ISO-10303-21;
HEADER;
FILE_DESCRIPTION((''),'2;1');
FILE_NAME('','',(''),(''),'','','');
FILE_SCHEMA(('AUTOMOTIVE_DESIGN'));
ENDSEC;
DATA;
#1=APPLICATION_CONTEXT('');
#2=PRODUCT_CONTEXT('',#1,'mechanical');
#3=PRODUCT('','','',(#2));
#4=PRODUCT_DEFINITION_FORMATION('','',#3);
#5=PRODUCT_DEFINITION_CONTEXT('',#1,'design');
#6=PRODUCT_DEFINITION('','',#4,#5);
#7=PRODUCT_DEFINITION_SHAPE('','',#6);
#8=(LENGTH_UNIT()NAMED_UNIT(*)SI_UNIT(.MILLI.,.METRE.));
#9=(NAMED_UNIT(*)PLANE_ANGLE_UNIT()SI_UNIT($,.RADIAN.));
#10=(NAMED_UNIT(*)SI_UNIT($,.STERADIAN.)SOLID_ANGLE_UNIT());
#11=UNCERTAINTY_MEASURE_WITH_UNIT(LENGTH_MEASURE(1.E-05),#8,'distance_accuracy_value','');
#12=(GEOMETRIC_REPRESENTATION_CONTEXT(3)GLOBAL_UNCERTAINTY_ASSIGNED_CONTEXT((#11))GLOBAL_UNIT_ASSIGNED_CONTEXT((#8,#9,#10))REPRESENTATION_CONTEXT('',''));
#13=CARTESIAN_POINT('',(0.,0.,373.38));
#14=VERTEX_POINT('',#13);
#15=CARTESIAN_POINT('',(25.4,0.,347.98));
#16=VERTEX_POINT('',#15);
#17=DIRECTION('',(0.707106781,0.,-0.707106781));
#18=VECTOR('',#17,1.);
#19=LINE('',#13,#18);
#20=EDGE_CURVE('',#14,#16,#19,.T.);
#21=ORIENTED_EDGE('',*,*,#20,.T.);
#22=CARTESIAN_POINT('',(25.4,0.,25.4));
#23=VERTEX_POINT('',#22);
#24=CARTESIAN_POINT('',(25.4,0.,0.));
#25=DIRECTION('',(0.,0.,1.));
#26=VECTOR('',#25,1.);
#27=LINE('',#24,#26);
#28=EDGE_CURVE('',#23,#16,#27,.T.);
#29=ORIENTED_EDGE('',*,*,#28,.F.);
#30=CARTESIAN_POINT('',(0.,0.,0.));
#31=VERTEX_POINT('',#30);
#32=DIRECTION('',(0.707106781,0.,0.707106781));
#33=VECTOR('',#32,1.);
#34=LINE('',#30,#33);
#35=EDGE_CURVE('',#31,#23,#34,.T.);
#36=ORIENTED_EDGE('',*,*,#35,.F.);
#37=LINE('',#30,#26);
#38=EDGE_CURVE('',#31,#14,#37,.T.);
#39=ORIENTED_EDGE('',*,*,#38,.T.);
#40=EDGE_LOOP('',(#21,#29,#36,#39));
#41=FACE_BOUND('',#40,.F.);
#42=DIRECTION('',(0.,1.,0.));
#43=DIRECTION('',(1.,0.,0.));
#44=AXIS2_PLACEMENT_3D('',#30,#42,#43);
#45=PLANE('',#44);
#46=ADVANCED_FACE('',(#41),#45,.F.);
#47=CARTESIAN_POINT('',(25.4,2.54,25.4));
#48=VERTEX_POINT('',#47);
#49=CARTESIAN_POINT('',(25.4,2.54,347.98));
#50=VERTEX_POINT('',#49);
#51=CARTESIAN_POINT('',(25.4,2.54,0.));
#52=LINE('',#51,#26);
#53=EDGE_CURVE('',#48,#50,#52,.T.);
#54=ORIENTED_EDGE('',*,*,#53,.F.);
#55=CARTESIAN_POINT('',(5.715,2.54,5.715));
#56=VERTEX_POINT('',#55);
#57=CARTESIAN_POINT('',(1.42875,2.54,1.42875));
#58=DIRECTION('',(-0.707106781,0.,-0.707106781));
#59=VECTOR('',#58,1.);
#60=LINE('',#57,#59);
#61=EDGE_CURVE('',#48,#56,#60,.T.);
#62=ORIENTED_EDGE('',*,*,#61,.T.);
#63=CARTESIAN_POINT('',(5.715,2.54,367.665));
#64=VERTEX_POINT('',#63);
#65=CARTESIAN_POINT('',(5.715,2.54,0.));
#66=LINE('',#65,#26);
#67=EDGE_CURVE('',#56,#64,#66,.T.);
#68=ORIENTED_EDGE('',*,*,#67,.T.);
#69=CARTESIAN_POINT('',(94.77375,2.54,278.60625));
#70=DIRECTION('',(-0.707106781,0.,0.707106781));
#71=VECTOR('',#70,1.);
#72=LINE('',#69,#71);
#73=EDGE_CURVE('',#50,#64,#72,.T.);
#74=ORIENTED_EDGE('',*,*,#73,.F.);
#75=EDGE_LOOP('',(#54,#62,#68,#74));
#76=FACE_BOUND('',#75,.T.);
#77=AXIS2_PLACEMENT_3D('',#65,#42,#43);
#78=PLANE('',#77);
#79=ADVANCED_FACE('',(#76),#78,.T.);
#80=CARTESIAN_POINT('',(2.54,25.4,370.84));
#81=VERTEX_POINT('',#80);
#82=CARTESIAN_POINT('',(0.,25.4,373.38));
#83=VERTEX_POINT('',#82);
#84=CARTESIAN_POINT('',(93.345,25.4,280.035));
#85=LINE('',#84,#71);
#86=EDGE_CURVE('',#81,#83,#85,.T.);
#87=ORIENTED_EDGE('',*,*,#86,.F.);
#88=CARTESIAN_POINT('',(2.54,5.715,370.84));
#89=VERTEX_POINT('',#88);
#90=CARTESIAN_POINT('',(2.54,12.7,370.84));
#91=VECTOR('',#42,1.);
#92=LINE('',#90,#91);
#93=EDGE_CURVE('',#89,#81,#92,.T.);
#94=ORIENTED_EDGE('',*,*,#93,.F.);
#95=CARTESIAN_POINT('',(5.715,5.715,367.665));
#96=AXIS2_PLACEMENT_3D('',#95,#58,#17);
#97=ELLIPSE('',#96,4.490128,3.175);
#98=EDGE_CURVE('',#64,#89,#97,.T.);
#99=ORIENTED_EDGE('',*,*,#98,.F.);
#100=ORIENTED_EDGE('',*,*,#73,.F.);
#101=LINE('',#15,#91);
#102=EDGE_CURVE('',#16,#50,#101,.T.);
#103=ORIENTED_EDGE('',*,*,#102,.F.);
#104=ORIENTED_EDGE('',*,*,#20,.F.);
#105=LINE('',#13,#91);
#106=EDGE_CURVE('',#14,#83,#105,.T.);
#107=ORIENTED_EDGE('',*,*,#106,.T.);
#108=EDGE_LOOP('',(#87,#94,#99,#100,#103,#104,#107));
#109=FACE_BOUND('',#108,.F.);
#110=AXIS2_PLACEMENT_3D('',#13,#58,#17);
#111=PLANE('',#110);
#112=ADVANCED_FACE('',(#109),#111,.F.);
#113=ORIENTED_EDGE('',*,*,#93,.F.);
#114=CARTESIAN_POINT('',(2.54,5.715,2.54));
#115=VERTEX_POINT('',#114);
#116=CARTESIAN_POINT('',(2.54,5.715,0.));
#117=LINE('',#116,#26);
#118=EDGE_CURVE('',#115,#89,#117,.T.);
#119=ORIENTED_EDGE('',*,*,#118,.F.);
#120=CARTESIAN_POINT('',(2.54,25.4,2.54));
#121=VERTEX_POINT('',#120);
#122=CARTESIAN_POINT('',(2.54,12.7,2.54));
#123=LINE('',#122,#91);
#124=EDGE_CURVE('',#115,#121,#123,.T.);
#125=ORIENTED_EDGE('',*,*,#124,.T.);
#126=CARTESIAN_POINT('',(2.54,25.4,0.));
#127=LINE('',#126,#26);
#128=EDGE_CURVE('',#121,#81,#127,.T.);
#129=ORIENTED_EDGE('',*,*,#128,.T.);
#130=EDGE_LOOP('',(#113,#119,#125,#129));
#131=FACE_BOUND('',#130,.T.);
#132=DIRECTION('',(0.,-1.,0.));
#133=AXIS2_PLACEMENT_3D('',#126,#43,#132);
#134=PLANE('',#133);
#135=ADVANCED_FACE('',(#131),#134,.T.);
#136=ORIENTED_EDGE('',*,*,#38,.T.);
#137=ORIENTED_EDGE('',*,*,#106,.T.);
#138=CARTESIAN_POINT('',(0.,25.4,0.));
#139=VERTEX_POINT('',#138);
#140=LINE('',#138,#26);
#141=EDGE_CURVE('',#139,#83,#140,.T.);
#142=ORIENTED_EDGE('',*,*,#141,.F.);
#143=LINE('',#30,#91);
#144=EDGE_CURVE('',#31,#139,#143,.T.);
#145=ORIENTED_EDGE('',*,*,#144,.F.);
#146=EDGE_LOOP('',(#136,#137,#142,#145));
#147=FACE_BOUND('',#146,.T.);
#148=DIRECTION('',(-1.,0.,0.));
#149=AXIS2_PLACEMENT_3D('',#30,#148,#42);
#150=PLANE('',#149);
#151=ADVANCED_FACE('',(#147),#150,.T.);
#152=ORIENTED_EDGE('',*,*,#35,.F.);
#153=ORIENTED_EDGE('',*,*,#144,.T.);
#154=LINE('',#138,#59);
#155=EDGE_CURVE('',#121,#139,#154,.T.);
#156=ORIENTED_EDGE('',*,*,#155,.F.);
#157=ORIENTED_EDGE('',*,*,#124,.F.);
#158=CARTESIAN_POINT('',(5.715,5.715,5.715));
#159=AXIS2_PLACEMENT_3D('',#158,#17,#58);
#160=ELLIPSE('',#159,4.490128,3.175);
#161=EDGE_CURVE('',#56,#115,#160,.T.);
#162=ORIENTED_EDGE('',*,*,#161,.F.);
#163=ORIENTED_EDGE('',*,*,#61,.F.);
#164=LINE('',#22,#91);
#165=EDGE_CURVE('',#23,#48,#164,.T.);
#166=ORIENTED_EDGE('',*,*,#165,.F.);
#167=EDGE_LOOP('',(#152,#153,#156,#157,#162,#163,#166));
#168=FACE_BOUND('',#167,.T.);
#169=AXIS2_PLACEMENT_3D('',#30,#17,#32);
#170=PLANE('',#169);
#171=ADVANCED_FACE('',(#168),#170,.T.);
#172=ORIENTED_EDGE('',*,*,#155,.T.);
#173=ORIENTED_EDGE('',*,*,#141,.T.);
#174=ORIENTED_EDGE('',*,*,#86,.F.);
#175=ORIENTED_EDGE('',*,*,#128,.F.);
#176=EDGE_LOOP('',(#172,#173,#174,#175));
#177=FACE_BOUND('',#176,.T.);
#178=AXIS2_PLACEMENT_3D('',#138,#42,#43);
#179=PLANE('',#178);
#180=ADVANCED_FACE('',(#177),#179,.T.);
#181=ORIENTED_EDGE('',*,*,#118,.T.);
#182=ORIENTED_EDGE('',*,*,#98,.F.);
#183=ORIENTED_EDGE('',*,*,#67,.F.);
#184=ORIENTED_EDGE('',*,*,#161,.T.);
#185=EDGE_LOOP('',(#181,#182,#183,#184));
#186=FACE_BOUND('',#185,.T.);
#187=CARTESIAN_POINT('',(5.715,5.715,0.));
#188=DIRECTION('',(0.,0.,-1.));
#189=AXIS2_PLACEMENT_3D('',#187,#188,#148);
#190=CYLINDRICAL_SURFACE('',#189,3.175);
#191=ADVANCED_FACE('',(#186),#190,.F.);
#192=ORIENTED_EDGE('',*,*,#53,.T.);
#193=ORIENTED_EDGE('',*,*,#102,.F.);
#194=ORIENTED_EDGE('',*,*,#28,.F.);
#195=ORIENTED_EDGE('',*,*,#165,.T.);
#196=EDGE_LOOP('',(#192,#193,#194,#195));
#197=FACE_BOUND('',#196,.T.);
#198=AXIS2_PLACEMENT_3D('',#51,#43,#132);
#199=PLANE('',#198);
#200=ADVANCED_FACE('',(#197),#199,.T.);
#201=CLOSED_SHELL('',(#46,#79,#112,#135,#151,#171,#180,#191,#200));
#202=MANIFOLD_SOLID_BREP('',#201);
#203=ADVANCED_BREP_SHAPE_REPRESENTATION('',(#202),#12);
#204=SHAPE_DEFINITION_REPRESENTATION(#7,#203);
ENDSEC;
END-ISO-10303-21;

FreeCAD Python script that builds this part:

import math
import FreeCAD as App
import Part
import Sketcher
Q = App.Units.Quantity

doc = App.newDocument("Part")
params = doc.addObject("Spreadsheet::Sheet", "Params")
for row, (alias, value) in enumerate([
    ("sketch1_width", "1 in"),
    ("sketch1_width2", "0.1 in"),
    ("sketch1_radius", "0.125 in"),
    ("pad1_length", "14.7 in"),
    ("sketch2_width", "1 in"),
    ("pocket1_length", "2 in"),
], start=1):
    params.set(f"A{row}", alias)
    params.set(f"B{row}", "=" + value)
    params.setAlias(f"B{row}", alias)

body = doc.addObject("PartDesign::Body", "Body")

# Sketch on XY plane
sketch1 = body.newObject("Sketcher::SketchObject", "Sketch")
sketch1.AttachmentSupport = (doc.getObject("XY_Plane"), [""])
sketch1.MapMode = "FlatFace"
sketch1.addGeometry(Part.LineSegment(App.Vector(0, 25.4, 0), App.Vector(0, 0, 0)), False)
sketch1.addGeometry(Part.LineSegment(App.Vector(0, 0, 0), App.Vector(25.4, 0, 0)), False)
sketch1.addGeometry(Part.LineSegment(App.Vector(25.4, 0, 0), App.Vector(25.4, 2.5, 0)), False)
sketch1.addGeometry(Part.LineSegment(App.Vector(25.4, 2.5, 0), App.Vector(5.7, 2.5, 0)), False)
sketch1.addGeometry(Part.ArcOfCircle(Part.Circle(App.Vector(5.7, 5.7, 0), App.Vector(0, 0, 1), 3.2), math.radians(180), math.radians(270)), False)
sketch1.addGeometry(Part.LineSegment(App.Vector(2.5, 5.7, 0), App.Vector(2.5, 25.4, 0)), False)
sketch1.addGeometry(Part.LineSegment(App.Vector(2.5, 25.4, 0), App.Vector(0, 25.4, 0)), False)
sketch1.addConstraint(Sketcher.Constraint("Coincident", 0, 2, 1, 1))
sketch1.addConstraint(Sketcher.Constraint("Coincident", 1, 2, 2, 1))
sketch1.addConstraint(Sketcher.Constraint("Coincident", 2, 2, 3, 1))
sketch1.addConstraint(Sketcher.Constraint("Tangent", 3, 2, 4, 2))
sketch1.addConstraint(Sketcher.Constraint("Tangent", 4, 1, 5, 1))
sketch1.addConstraint(Sketcher.Constraint("Coincident", 5, 2, 6, 1))
sketch1.addConstraint(Sketcher.Constraint("Coincident", 6, 2, 0, 1))
sketch1.addConstraint(Sketcher.Constraint("Vertical", 0))
sketch1.addConstraint(Sketcher.Constraint("Horizontal", 1))
sketch1.addConstraint(Sketcher.Constraint("Vertical", 2))
sketch1.addConstraint(Sketcher.Constraint("Horizontal", 3))
sketch1.addConstraint(Sketcher.Constraint("Vertical", 5))
sketch1.addConstraint(Sketcher.Constraint("Horizontal", 6))
sketch1.addConstraint(Sketcher.Constraint("Coincident", 0, 2, -1, 1))
sketch1.addConstraint(Sketcher.Constraint("Equal", 1, 0))
sketch1.addConstraint(Sketcher.Constraint("Equal", 6, 2))
sketch1.addConstraint(Sketcher.Constraint("DistanceX", 1, 1, 1, 2, Q("1 in")))
sketch1.addConstraint(Sketcher.Constraint("DistanceX", 6, 2, 6, 1, Q("0.1 in")))
sketch1.addConstraint(Sketcher.Constraint("Radius", 4, Q("0.125 in")))
sketch1.setExpression("Constraints[16]", "Params.sketch1_width")
sketch1.setExpression("Constraints[17]", "Params.sketch1_width2")
sketch1.setExpression("Constraints[18]", "Params.sketch1_radius")
pad1 = body.newObject("PartDesign::Pad", "Pad")
pad1.Profile = sketch1
pad1.setExpression("Length", "Params.pad1_length")

# Sketch on XZ plane
sketch2 = body.newObject("Sketcher::SketchObject", "Sketch001")
sketch2.AttachmentSupport = (doc.getObject("XZ_Plane"), [""])
sketch2.MapMode = "FlatFace"
sketch2.addGeometry(Part.LineSegment(App.Vector(0, 373, 0), App.Vector(25, 348, 0)), False)
sketch2.addGeometry(Part.LineSegment(App.Vector(25, 348, 0), App.Vector(25, 373, 0)), False)
sketch2.addGeometry(Part.LineSegment(App.Vector(25, 373, 0), App.Vector(0, 373, 0)), False)
sketch2.addGeometry(Part.LineSegment(App.Vector(0, 0, 0), App.Vector(25, 0, 0)), False)
sketch2.addGeometry(Part.LineSegment(App.Vector(25, 0, 0), App.Vector(25, 25, 0)), False)
sketch2.addGeometry(Part.LineSegment(App.Vector(25, 25, 0), App.Vector(0, 0, 0)), False)
sketch2.addConstraint(Sketcher.Constraint("Coincident", 0, 2, 1, 1))
sketch2.addConstraint(Sketcher.Constraint("Coincident", 1, 2, 2, 1))
sketch2.addConstraint(Sketcher.Constraint("Coincident", 2, 2, 0, 1))
sketch2.addConstraint(Sketcher.Constraint("Coincident", 3, 2, 4, 1))
sketch2.addConstraint(Sketcher.Constraint("Coincident", 4, 2, 5, 1))
sketch2.addConstraint(Sketcher.Constraint("Coincident", 5, 2, 3, 1))
sketch2.addConstraint(Sketcher.Constraint("Vertical", 1))
sketch2.addConstraint(Sketcher.Constraint("Horizontal", 2))
sketch2.addConstraint(Sketcher.Constraint("Horizontal", 3))
sketch2.addConstraint(Sketcher.Constraint("Vertical", 4))
sketch2.addConstraint(Sketcher.Constraint("Coincident", 5, 2, -1, 1))
sketch2.addConstraint(Sketcher.Constraint("PointOnObject", 2, 2, -2))
sketch2.addConstraint(Sketcher.Constraint("Perpendicular", 0, 5))
sketch2.addConstraint(Sketcher.Constraint("Vertical", 1, 2, 3, 2))
sketch2.addConstraint(Sketcher.Constraint("Equal", 3, 1))
sketch2.addConstraint(Sketcher.Constraint("DistanceX", 2, 2, 2, 1, Q("1 in")))
sketch2.addConstraint(Sketcher.Constraint("DistanceY", -1, 1, 0, 2, Q("13.7 in")))
sketch2.setExpression("Constraints[15]", "Params.sketch2_width")
pocket1 = body.newObject("PartDesign::Pocket", "Pocket")
pocket1.Profile = sketch2
pocket1.setExpression("Length", "Params.pocket1_length")

doc.recompute()
